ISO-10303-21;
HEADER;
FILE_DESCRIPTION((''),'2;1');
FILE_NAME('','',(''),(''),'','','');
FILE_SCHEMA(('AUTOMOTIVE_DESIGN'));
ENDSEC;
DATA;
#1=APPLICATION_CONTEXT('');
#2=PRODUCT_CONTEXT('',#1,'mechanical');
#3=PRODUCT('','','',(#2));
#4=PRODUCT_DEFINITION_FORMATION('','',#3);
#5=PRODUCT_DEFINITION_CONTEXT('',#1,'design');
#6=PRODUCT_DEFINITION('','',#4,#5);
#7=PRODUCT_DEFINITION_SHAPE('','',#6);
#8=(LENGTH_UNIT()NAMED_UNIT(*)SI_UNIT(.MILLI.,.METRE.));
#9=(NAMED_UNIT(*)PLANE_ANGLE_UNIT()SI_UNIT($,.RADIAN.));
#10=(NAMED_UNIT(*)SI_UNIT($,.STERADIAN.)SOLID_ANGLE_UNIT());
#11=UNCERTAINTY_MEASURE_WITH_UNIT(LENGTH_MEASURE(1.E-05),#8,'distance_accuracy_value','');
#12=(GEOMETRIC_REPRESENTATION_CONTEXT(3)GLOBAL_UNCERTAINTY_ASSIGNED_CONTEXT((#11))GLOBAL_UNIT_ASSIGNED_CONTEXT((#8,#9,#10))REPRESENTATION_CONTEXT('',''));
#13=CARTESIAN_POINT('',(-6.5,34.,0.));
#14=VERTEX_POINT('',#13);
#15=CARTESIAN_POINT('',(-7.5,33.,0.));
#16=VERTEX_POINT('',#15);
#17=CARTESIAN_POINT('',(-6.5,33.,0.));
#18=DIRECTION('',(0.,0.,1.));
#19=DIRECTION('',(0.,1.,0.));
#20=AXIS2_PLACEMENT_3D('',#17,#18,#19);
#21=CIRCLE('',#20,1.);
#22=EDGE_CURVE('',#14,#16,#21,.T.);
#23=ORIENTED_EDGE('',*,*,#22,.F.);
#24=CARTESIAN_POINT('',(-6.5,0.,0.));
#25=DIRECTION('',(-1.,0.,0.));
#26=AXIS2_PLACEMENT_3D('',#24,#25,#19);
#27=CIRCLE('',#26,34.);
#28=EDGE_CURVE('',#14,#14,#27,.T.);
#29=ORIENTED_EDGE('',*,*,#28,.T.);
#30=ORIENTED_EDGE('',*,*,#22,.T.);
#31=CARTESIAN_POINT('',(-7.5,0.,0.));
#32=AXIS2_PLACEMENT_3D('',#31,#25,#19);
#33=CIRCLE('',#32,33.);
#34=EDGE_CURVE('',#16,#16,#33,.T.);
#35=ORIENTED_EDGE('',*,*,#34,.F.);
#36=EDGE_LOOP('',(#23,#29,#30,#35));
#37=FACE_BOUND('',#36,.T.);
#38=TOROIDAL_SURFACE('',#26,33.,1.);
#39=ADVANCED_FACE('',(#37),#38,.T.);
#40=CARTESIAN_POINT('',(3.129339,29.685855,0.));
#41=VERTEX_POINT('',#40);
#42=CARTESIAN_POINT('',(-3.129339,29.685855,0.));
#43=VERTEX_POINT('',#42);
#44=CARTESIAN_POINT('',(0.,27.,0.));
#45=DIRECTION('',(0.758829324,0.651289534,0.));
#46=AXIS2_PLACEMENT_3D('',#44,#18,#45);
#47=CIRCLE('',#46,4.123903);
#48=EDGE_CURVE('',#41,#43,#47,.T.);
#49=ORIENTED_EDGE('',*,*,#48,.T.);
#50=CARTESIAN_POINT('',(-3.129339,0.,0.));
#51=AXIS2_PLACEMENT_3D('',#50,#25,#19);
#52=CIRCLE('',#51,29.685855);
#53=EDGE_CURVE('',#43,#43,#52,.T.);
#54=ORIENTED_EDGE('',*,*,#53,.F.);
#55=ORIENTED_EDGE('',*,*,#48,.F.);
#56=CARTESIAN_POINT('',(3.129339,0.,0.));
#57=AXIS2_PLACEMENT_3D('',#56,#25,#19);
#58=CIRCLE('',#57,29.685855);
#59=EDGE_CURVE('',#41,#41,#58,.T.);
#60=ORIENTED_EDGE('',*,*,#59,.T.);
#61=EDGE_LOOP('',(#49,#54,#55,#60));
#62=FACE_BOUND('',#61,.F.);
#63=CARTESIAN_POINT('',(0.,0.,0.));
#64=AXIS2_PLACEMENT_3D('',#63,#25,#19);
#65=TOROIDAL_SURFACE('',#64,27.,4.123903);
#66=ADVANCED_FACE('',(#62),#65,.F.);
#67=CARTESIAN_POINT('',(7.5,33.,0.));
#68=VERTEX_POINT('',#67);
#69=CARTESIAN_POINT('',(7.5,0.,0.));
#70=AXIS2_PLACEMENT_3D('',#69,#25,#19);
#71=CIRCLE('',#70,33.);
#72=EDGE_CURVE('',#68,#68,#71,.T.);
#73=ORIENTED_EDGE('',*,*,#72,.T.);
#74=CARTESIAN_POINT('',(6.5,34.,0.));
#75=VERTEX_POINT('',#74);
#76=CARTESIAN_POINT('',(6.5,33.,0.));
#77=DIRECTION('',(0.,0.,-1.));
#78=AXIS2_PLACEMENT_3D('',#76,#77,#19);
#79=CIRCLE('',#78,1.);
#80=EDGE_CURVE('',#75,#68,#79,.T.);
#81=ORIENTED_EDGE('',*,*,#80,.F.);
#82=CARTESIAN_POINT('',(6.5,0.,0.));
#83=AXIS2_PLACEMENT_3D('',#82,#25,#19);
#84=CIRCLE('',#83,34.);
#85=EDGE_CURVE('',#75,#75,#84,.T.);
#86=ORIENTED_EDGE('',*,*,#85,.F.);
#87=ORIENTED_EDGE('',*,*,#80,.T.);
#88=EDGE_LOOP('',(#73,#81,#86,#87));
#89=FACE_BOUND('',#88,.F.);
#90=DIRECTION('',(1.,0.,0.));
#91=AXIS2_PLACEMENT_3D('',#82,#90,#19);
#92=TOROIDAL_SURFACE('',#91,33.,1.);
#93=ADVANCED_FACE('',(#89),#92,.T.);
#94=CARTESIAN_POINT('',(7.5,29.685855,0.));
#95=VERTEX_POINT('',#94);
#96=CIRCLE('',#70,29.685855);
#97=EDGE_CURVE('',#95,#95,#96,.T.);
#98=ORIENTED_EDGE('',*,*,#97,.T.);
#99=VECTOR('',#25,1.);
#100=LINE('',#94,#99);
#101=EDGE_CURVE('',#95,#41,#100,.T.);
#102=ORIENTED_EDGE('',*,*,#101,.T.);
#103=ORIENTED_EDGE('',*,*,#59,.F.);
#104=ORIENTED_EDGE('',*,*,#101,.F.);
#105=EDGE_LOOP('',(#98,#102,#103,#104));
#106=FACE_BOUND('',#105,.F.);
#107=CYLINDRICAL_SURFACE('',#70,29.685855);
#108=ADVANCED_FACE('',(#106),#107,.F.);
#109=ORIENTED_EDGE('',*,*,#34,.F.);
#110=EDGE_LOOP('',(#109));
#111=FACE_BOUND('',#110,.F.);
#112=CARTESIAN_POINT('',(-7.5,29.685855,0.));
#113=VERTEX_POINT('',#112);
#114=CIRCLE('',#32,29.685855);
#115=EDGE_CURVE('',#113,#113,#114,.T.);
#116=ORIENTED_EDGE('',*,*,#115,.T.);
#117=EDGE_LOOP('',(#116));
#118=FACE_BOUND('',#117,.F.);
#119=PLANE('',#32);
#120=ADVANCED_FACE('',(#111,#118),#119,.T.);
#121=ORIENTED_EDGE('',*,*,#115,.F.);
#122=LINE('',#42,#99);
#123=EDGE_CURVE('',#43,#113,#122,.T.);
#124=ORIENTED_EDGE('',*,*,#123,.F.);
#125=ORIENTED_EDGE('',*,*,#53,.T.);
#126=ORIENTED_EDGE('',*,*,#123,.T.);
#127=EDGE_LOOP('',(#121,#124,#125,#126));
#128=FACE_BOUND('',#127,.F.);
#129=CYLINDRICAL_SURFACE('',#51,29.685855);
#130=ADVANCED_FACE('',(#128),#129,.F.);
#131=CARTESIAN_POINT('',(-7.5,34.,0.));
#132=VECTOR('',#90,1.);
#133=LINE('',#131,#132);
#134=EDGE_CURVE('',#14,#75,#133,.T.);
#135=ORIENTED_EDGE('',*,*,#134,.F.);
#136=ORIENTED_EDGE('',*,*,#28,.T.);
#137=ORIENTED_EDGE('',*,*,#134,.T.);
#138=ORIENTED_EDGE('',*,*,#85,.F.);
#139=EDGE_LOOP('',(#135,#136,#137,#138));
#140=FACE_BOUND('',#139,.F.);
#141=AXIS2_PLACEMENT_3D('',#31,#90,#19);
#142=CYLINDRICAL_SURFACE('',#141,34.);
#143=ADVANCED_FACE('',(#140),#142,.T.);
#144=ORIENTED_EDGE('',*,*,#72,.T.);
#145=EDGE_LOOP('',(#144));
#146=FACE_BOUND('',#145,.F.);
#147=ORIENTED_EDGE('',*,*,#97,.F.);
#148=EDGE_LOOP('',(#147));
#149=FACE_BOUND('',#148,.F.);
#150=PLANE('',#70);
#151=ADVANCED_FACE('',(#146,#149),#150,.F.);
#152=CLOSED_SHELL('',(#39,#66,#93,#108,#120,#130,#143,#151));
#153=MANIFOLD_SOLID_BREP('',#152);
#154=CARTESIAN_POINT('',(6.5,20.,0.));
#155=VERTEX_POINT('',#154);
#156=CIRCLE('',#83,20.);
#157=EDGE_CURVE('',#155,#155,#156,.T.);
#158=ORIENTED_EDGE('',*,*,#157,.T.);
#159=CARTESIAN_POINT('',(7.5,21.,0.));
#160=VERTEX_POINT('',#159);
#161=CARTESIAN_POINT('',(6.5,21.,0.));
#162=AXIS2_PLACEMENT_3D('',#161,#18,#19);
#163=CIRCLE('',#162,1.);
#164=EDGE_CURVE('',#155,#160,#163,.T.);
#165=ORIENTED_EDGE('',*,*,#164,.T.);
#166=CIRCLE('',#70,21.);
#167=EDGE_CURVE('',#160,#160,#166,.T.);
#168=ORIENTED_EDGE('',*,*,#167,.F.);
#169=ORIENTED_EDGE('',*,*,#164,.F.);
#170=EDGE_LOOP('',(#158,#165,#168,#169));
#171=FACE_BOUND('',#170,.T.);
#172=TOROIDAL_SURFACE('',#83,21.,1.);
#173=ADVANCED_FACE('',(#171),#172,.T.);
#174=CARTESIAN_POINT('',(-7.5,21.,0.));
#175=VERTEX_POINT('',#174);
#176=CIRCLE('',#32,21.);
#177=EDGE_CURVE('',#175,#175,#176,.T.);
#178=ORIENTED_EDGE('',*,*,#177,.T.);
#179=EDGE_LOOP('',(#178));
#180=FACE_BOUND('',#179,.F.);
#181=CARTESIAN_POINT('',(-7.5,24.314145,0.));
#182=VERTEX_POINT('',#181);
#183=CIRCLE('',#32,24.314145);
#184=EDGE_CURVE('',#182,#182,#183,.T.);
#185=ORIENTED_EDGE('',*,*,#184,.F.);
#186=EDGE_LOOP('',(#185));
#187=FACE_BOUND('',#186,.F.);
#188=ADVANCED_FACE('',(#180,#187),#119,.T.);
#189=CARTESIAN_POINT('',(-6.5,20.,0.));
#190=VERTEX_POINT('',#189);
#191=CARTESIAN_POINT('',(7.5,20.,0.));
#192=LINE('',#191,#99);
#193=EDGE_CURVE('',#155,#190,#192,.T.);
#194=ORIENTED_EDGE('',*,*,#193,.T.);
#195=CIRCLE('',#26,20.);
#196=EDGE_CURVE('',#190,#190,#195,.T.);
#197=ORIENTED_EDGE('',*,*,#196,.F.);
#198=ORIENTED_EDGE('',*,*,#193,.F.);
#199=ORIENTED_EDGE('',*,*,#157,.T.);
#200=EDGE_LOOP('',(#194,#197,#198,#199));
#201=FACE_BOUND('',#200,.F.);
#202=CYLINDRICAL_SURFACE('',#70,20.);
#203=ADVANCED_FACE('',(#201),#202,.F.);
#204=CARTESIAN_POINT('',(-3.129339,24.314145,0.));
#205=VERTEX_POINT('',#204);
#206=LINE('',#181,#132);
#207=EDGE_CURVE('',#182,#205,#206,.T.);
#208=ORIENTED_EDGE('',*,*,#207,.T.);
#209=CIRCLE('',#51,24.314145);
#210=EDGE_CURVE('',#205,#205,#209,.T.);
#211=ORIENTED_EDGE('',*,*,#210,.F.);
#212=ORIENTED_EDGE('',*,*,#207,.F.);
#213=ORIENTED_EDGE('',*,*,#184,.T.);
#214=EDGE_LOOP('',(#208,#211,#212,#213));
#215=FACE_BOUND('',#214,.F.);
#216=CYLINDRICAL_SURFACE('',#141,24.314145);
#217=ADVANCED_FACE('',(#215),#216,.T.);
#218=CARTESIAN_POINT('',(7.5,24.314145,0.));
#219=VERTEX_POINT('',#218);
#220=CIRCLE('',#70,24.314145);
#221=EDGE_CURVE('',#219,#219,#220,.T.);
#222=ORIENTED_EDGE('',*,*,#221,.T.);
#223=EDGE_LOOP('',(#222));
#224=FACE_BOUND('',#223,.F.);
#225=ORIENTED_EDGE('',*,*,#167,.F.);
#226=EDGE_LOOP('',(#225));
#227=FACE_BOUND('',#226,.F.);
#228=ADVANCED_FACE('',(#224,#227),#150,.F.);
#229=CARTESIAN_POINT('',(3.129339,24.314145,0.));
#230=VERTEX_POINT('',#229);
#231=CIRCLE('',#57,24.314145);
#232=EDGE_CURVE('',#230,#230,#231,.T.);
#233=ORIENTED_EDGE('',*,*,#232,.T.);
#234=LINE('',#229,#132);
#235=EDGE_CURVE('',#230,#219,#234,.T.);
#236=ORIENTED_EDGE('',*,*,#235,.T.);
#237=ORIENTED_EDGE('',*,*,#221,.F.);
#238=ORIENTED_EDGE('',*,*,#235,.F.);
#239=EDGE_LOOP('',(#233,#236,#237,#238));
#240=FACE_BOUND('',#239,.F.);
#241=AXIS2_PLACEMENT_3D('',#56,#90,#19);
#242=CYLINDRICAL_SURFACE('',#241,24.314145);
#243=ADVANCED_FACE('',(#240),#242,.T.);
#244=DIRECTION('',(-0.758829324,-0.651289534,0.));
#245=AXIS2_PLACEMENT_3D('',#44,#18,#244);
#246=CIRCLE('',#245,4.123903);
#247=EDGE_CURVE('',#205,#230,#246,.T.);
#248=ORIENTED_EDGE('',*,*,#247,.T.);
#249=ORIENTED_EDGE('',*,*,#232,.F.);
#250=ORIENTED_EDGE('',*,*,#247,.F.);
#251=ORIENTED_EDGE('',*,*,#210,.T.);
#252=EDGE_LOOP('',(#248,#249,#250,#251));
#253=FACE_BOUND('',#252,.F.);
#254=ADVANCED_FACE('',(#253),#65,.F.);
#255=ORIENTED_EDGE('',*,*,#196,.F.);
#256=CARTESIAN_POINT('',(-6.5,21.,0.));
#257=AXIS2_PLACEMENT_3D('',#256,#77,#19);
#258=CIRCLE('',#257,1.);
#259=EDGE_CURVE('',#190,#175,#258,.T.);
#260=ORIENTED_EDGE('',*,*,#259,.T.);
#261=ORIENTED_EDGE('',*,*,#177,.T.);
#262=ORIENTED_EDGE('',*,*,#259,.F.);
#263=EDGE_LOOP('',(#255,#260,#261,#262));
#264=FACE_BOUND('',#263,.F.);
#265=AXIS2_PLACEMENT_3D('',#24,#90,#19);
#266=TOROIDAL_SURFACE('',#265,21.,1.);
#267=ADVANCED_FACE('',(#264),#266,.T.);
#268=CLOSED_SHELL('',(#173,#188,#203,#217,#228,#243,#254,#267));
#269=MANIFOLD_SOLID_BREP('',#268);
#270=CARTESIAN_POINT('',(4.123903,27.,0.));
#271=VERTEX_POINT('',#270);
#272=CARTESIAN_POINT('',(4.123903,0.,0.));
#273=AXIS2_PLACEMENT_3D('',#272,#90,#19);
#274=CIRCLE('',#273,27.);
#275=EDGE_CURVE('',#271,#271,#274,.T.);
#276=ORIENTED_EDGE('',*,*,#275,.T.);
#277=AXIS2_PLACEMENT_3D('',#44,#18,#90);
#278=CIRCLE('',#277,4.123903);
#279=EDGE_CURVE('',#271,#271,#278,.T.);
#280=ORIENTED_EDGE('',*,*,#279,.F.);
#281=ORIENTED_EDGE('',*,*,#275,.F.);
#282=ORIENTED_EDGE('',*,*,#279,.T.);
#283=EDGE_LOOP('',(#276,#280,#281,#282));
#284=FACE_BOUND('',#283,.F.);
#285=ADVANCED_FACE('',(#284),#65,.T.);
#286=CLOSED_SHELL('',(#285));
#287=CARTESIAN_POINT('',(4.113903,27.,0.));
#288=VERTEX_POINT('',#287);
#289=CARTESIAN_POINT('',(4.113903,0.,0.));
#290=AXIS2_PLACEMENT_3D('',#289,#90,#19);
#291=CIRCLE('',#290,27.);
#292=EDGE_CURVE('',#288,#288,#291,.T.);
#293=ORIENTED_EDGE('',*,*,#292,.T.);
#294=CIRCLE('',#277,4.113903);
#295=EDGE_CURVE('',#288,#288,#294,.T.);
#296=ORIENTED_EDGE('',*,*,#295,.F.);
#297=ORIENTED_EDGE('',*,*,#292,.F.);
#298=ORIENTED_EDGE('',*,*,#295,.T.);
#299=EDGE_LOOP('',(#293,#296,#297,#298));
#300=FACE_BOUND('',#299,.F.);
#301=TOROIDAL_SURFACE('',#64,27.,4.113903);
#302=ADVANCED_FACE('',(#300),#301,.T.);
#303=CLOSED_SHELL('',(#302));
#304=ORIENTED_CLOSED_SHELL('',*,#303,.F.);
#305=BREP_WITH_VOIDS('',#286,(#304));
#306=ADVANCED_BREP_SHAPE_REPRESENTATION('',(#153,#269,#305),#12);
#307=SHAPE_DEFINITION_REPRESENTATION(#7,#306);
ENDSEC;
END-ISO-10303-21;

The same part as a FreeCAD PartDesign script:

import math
import FreeCAD as App
import Part
import Sketcher
Q = App.Units.Quantity


def edges_at(feature, points):
    """Names of the edges that pass closest to the given points."""
    edges = feature.Shape.Edges
    near = lambda p: min(range(len(edges)), key=lambda i: edges[i].distToShape(Part.Vertex(*p))[0])
    return sorted({f"Edge{near(p) + 1}" for p in points})

doc = App.newDocument("Part")
body = doc.addObject("PartDesign::Body", "Body")
body.AllowCompound = True

# Sketch on XY plane
sketch1 = body.newObject("Sketcher::SketchObject", "Sketch")
sketch1.AttachmentSupport = (doc.getObject("XY_Plane"), [""])
sketch1.MapMode = "FlatFace"
sketch1.addGeometry([
    Part.LineSegment(App.Vector(7.5, 34, 0), App.Vector(-7.5, 34, 0)),  # 0
    Part.LineSegment(App.Vector(-7.5, 34, 0), App.Vector(-7.5, 29.685855, 0)),  # 1
    Part.LineSegment(App.Vector(-7.5, 29.685855, 0), App.Vector(-3.129339, 29.685855, 0)),  # 2
    Part.ArcOfCircle(Part.Circle(App.Vector(0, 27, 0), App.Vector(0, 0, 1), 4.123903), math.radians(40.638898), math.radians(139.361102)),  # 3
    Part.LineSegment(App.Vector(3.129339, 29.685855, 0), App.Vector(7.5, 29.685855, 0)),  # 4
    Part.LineSegment(App.Vector(7.5, 29.685855, 0), App.Vector(7.5, 34, 0)),  # 5
    Part.LineSegment(App.Vector(-7.5, 20, 0), App.Vector(7.5, 20, 0)),  # 6
    Part.LineSegment(App.Vector(7.5, 20, 0), App.Vector(7.5, 24.314145, 0)),  # 7
    Part.LineSegment(App.Vector(7.5, 24.314145, 0), App.Vector(3.129339, 24.314145, 0)),  # 8
    Part.ArcOfCircle(Part.Circle(App.Vector(0, 27, 0), App.Vector(0, 0, 1), 4.123903), math.radians(-139.361102), math.radians(-40.638898)),  # 9
    Part.LineSegment(App.Vector(-3.129339, 24.314145, 0), App.Vector(-7.5, 24.314145, 0)),  # 10
    Part.LineSegment(App.Vector(-7.5, 24.314145, 0), App.Vector(-7.5, 20, 0)),  # 11
], False)
sketch1.addConstraint([
    Sketcher.Constraint("Coincident", 0, 2, 1, 1),
    Sketcher.Constraint("Coincident", 1, 2, 2, 1),
    Sketcher.Constraint("Coincident", 2, 2, 3, 2),
    Sketcher.Constraint("Coincident", 3, 1, 4, 1),
    Sketcher.Constraint("Coincident", 4, 2, 5, 1),
    Sketcher.Constraint("Coincident", 5, 2, 0, 1),
    Sketcher.Constraint("Coincident", 6, 2, 7, 1),
    Sketcher.Constraint("Coincident", 7, 2, 8, 1),
    Sketcher.Constraint("Coincident", 8, 2, 9, 2),
    Sketcher.Constraint("Coincident", 9, 1, 10, 1),
    Sketcher.Constraint("Coincident", 10, 2, 11, 1),
    Sketcher.Constraint("Coincident", 11, 2, 6, 1),
    Sketcher.Constraint("Horizontal", 0),
    Sketcher.Constraint("Vertical", 1),
    Sketcher.Constraint("Horizontal", 2),
    Sketcher.Constraint("Horizontal", 4),
    Sketcher.Constraint("Vertical", 5),
    Sketcher.Constraint("Horizontal", 6),
    Sketcher.Constraint("Vertical", 7),
    Sketcher.Constraint("Horizontal", 8),
    Sketcher.Constraint("Horizontal", 10),
    Sketcher.Constraint("Vertical", 11),
    Sketcher.Constraint("Coincident", 9, 3, 3, 3),
    Sketcher.Constraint("Equal", 3, 9),
    Sketcher.Constraint("Symmetric", 2, 2, 3, 1, -2),
    Sketcher.Constraint("Symmetric", 7, 2, 10, 2, -2),
    Sketcher.Constraint("Vertical", 5, 2, 6, 2),
    Sketcher.Constraint("Vertical", 3, 1, 8, 2),
    Sketcher.Constraint("Vertical", 1, 2, 10, 2),
    Sketcher.Constraint("Equal", 5, 7),
    Sketcher.Constraint("DistanceX", 0, 2, 0, 1, Q("15 mm")),
    Sketcher.Constraint("DistanceY", -1, 1, 3, 3, Q("27 mm")),
    Sketcher.Constraint("DistanceY", -1, 1, 0, 2, Q("34 mm")),
    Sketcher.Constraint("Radius", 3, Q("4.123903 mm")),
    Sketcher.Constraint("DistanceX", 2, 1, 2, 2, Q("4.370661 mm")),
])
revolution = body.newObject("PartDesign::Revolution", "Revolution")
revolution.Profile = sketch1
revolution.ReferenceAxis = (sketch1, ["H_Axis"])
revolution.Angle = 360
doc.recompute()

fillet = body.newObject("PartDesign::Fillet", "Fillet")
fillet.Base = (revolution, edges_at(revolution, [(7.5, -34, 0), (-7.5, -34, 0)]))
fillet.Radius = 1
doc.recompute()

fillet2 = body.newObject("PartDesign::Fillet", "Fillet001")
fillet2.Base = (fillet, edges_at(fillet, [(7.5, -20, 0), (-7.5, -20, 0)]))
fillet2.Radius = 1
body2 = doc.addObject("PartDesign::Body", "Body001")

# Sketch on XY plane
sketch2 = body2.newObject("Sketcher::SketchObject", "Sketch001")
sketch2.AttachmentSupport = (doc.getObject("XY_Plane001"), [""])
sketch2.MapMode = "FlatFace"
sketch2.addGeometry([
    Part.Circle(App.Vector(0, 27, 0), App.Vector(0, 0, 1), 4.123903),
    Part.Circle(App.Vector(0, 27, 0), App.Vector(0, 0, 1), 4.113903),
], False)
sketch2.addConstraint([
    Sketcher.Constraint("Coincident", 1, 3, 0, 3),
    Sketcher.Constraint("PointOnObject", 0, 3, -2),
    Sketcher.Constraint("DistanceY", -1, 1, 0, 3, Q("27 mm")),
    Sketcher.Constraint("Diameter", 0, Q("8.247807 mm")),
    Sketcher.Constraint("Diameter", 1, Q("8.227807 mm")),
])
revolution2 = body2.newObject("PartDesign::Revolution", "Revolution001")
revolution2.Profile = sketch2
revolution2.ReferenceAxis = (sketch2, ["H_Axis"])
revolution2.Angle = 360

doc.recompute()
